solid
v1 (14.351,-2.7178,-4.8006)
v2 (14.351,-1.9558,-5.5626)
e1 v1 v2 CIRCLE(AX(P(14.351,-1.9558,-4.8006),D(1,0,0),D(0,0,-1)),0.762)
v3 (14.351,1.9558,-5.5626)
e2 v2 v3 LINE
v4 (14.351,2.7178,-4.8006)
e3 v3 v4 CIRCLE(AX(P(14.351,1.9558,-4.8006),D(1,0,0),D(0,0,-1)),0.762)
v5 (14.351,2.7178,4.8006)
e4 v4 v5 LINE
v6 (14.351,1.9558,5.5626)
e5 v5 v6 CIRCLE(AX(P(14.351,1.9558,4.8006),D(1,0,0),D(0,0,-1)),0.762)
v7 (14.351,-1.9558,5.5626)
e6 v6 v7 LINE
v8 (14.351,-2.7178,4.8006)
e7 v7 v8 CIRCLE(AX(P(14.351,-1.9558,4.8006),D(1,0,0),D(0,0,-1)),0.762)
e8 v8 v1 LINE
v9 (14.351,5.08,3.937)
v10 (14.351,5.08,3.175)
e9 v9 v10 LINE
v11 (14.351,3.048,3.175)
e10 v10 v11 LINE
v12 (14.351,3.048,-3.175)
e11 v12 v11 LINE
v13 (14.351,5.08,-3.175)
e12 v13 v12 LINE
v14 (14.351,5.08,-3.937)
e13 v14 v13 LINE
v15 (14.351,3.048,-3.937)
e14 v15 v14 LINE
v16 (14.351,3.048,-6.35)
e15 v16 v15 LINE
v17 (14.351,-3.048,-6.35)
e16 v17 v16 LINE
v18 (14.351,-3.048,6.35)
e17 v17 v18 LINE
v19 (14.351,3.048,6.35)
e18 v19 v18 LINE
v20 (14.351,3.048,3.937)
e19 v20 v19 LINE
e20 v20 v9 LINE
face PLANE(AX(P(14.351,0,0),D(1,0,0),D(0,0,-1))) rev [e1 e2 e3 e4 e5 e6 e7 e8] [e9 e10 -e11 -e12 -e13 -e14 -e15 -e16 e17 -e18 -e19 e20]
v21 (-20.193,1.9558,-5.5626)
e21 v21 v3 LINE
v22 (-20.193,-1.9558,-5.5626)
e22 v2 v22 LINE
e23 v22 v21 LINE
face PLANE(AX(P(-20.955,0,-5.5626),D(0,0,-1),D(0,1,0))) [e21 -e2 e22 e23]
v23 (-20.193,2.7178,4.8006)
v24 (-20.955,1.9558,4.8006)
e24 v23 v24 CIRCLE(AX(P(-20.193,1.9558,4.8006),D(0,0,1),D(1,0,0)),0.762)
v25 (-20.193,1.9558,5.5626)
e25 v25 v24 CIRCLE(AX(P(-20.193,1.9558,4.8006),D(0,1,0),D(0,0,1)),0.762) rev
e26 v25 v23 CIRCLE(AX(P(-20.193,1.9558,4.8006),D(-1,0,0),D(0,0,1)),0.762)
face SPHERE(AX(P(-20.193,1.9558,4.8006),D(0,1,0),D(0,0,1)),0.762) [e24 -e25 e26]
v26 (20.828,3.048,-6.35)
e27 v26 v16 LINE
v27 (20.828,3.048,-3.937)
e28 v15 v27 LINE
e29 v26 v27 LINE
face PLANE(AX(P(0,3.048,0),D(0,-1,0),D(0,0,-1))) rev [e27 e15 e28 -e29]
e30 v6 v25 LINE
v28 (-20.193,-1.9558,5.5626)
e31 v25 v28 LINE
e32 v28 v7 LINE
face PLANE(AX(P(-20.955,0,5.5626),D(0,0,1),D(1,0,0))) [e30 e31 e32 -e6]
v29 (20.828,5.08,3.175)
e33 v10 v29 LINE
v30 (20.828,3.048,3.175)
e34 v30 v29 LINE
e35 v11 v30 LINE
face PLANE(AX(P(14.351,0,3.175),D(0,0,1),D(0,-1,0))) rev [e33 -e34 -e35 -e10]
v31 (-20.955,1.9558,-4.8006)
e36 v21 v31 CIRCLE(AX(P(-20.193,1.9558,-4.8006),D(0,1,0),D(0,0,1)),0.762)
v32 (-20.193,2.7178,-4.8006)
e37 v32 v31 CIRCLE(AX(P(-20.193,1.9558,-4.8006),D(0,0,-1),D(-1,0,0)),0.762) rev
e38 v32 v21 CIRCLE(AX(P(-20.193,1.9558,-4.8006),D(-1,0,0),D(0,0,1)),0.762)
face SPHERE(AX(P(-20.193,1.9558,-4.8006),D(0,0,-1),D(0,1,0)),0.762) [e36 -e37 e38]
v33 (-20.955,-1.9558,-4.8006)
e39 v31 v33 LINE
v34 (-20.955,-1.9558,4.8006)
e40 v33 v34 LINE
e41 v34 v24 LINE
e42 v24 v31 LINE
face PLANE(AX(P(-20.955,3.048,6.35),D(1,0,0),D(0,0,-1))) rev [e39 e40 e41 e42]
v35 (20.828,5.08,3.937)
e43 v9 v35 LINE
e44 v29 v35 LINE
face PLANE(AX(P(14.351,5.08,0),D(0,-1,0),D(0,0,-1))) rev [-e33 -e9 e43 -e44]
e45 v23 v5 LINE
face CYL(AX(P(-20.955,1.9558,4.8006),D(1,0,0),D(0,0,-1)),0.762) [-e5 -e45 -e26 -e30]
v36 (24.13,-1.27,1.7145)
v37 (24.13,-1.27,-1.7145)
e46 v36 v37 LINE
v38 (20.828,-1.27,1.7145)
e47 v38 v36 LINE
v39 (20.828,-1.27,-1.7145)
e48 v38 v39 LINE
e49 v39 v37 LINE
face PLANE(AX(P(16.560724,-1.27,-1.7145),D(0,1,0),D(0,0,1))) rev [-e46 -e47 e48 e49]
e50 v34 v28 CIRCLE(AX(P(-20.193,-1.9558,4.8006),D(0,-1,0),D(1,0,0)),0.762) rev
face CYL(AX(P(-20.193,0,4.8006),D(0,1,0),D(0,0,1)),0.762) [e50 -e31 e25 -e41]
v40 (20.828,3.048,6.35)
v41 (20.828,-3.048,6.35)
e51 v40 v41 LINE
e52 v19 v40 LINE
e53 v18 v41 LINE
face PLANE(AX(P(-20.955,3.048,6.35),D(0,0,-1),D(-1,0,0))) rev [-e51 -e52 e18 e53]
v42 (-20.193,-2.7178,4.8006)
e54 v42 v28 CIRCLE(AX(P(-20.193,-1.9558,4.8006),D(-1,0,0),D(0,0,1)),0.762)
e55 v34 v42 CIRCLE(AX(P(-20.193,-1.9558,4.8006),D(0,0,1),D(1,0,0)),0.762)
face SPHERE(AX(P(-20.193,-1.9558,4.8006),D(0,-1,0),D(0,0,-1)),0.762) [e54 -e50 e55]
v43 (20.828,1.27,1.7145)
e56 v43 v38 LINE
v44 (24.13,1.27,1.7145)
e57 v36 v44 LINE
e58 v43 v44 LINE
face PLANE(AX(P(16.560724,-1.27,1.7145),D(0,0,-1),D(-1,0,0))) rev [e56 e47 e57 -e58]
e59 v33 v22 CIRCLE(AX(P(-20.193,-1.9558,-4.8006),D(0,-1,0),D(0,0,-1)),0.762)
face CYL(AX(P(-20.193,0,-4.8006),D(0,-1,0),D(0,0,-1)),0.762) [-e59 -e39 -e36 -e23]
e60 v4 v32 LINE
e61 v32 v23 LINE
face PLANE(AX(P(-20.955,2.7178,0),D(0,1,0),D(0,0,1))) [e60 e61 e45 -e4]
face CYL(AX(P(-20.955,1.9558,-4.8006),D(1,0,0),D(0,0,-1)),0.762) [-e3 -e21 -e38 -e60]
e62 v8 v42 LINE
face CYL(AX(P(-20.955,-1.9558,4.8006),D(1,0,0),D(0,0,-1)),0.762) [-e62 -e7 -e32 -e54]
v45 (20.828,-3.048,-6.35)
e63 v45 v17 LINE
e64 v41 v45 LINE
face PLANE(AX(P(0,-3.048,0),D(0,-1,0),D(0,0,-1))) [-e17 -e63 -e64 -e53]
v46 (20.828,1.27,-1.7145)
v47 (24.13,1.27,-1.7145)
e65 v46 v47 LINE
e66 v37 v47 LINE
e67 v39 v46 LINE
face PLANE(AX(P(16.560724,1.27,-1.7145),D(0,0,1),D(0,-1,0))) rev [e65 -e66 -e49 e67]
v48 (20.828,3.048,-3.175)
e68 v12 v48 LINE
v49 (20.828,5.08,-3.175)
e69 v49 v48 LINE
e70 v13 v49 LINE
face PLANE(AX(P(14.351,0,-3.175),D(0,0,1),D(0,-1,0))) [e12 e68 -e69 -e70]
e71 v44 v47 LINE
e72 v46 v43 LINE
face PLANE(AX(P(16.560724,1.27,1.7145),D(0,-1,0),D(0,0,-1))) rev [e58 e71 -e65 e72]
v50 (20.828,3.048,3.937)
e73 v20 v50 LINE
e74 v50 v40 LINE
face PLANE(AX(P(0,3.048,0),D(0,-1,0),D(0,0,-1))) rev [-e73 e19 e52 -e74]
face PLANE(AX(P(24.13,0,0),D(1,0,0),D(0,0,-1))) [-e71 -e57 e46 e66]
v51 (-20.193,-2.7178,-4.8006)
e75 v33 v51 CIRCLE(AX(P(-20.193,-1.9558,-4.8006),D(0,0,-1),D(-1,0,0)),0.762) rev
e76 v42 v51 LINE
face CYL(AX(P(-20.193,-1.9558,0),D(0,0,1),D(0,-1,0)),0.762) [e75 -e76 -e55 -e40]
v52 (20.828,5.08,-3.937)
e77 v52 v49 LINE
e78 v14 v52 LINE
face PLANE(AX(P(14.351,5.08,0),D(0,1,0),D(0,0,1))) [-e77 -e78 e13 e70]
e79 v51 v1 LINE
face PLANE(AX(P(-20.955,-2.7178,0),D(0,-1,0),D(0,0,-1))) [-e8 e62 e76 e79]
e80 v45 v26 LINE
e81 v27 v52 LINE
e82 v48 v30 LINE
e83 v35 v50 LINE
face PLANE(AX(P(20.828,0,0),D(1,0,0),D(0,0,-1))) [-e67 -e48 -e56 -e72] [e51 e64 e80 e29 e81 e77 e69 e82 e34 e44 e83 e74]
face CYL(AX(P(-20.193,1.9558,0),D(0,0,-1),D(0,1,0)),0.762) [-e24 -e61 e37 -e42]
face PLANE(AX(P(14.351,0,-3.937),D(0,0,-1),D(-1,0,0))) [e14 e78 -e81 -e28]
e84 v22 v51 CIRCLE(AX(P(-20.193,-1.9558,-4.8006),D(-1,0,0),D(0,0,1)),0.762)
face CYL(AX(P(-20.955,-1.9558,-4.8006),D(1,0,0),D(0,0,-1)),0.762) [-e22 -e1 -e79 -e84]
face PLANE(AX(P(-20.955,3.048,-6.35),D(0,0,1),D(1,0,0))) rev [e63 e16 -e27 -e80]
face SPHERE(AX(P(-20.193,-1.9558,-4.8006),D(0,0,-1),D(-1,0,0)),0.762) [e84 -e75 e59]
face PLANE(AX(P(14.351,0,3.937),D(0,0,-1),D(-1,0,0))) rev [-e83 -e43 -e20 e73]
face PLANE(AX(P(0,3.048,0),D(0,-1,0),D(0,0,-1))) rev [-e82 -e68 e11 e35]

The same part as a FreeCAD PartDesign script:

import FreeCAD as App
import Part
import Sketcher

V = App.Vector
Q = App.Units.Quantity


def edges_at(feature, points):
    """Names of the edges that pass closest to the given points."""
    edges = feature.Shape.Edges
    near = lambda p: min(range(len(edges)), key=lambda i: edges[i].distToShape(Part.Vertex(*p))[0])
    return sorted({f"Edge{near(p) + 1}" for p in points})


def add_polygon(sketch, points):
    """Adds a closed chain of lines whose ends are joined by coincident constraints."""
    first, n = sketch.GeometryCount, len(points)
    for a, b in zip(points, points[1:] + points[:1]):
        sketch.addGeometry(Part.LineSegment(App.Vector(*a, 0), App.Vector(*b, 0)), False)
    for i in range(n):
        sketch.addConstraint(Sketcher.Constraint("Coincident", first + i, 2, first + (i + 1) % n, 1))

doc = App.newDocument("Part")
body = doc.addObject("PartDesign::Body", "Body")
body.AllowCompound = True

sketch1 = body.newObject("Sketcher::SketchObject", "Sketch")
sketch1.AttachmentSupport = (doc.getObject("XZ_Plane"), [""])
sketch1.MapMode = "FlatFace"
add_polygon(sketch1, [(-20.955, -6.35), (-20.955, 6.35), (20.955, 6.35), (20.955, -6.35)])
sketch1.addConstraint(Sketcher.Constraint("Vertical", 0))
sketch1.addConstraint(Sketcher.Constraint("Horizontal", 1))
sketch1.addConstraint(Sketcher.Constraint("Vertical", 2))
sketch1.addConstraint(Sketcher.Constraint("Horizontal", 3))
sketch1.addConstraint(Sketcher.Constraint("Symmetric", 0, 2, 2, 2, -1, 1))
sketch1.addConstraint(Sketcher.Constraint("DistanceY", 0, 1, 0, 2, Q("0.5 in")))
sketch1.addConstraint(Sketcher.Constraint("DistanceX", 1, 1, 1, 2, Q("1.65 in")))
pad1 = body.newObject("PartDesign::Pad", "Pad")
pad1.Profile = sketch1
pad1.Length = Q("0.24 in")
pad1.Midplane = True

sketch2 = body.newObject("Sketcher::SketchObject", "Sketch001")
sketch2.AttachmentSupport = (doc.getObject("YZ_Plane"), [""])
sketch2.MapMode = "FlatFace"
sketch2.AttachmentOffset = App.Placement(V(0, 0, 0.825 * 25.4), App.Rotation())
add_polygon(sketch2, [(5.08, 3.937), (3.048, 3.937), (3.048, 3.175), (5.08, 3.175)])
add_polygon(sketch2, [(5.08, -3.175), (3.048, -3.175), (3.048, -3.937), (5.08, -3.937)])
sketch2.addConstraint(Sketcher.Constraint("Horizontal", 0))
sketch2.addConstraint(Sketcher.Constraint("Vertical", 1))
sketch2.addConstraint(Sketcher.Constraint("Horizontal", 2))
sketch2.addConstraint(Sketcher.Constraint("Vertical", 3))
sketch2.addConstraint(Sketcher.Constraint("Horizontal", 4))
sketch2.addConstraint(Sketcher.Constraint("Vertical", 5))
sketch2.addConstraint(Sketcher.Constraint("Horizontal", 6))
sketch2.addConstraint(Sketcher.Constraint("Vertical", 7))
sketch2.addConstraint(Sketcher.Constraint("Symmetric", 1, 2, 4, 2, -1))
sketch2.addConstraint(Sketcher.Constraint("Symmetric", 3, 2, 6, 2, -1))
sketch2.addConstraint(Sketcher.Constraint("DistanceX", 0, 2, 0, 1, Q("0.08 in")))
sketch2.addConstraint(Sketcher.Constraint("DistanceY", 1, 2, 1, 1, Q("0.03 in")))
sketch2.addConstraint(Sketcher.Constraint("DistanceX", -1, 1, 2, 2, Q("0.2 in")))
sketch2.addConstraint(Sketcher.Constraint("DistanceY", 4, 2, 1, 2, Q("0.25 in")))
pad2 = body.newObject("PartDesign::Pad", "Pad001")
pad2.Profile = sketch2
pad2.Length = Q("0.26 in")
pad2.Reversed = True

sketch3 = body.newObject("Sketcher::SketchObject", "Sketch002")
sketch3.AttachmentSupport = (doc.getObject("YZ_Plane"), [""])
sketch3.MapMode = "FlatFace"
sketch3.AttachmentOffset = App.Placement(V(0, 0, 0.825 * 25.4), App.Rotation())
add_polygon(sketch3, [(1.27, 1.7145), (-1.27, 1.7145), (-1.27, -1.7145), (1.27, -1.7145)])
sketch3.addConstraint(Sketcher.Constraint("Horizontal", 0))
sketch3.addConstraint(Sketcher.Constraint("Vertical", 1))
sketch3.addConstraint(Sketcher.Constraint("Horizontal", 2))
sketch3.addConstraint(Sketcher.Constraint("Vertical", 3))
sketch3.addConstraint(Sketcher.Constraint("Symmetric", 0, 2, 2, 2, -1, 1))
sketch3.addConstraint(Sketcher.Constraint("DistanceX", 0, 2, 0, 1, Q("0.1 in")))
sketch3.addConstraint(Sketcher.Constraint("DistanceY", 1, 2, 1, 1, Q("0.135 in")))
pad3 = body.newObject("PartDesign::Pad", "Pad002")
pad3.Profile = sketch3
pad3.Length = Q("0.125 in")

sketch4 = body.newObject("Sketcher::SketchObject", "Sketch003")
sketch4.AttachmentSupport = (doc.getObject("YZ_Plane"), [""])
sketch4.MapMode = "FlatFace"
sketch4.AttachmentOffset = App.Placement(V(0, 0, 0.565 * 25.4), App.Rotation())
add_polygon(sketch4, [(3.958647, 7.119951), (-3.958647, 7.119951), (-3.958647, -7.119951), (3.958647, -7.119951)])
add_polygon(sketch4, [(-2.7178, -5.5626), (-2.7178, 5.5626), (2.7178, 5.5626), (2.7178, -5.5626)])
sketch4.addConstraint(Sketcher.Constraint("Horizontal", 0))
sketch4.addConstraint(Sketcher.Constraint("Vertical", 1))
sketch4.addConstraint(Sketcher.Constraint("Horizontal", 2))
sketch4.addConstraint(Sketcher.Constraint("Vertical", 3))
sketch4.addConstraint(Sketcher.Constraint("Vertical", 4))
sketch4.addConstraint(Sketcher.Constraint("Horizontal", 5))
sketch4.addConstraint(Sketcher.Constraint("Vertical", 6))
sketch4.addConstraint(Sketcher.Constraint("Horizontal", 7))
sketch4.addConstraint(Sketcher.Constraint("Symmetric", 0, 2, 2, 2, -1, 1))
sketch4.addConstraint(Sketcher.Constraint("Symmetric", 4, 2, 6, 2, -1, 1))
sketch4.addConstraint(Sketcher.Constraint("DistanceX", 5, 1, 5, 2, Q("0.214 in")))
sketch4.addConstraint(Sketcher.Constraint("DistanceY", 4, 1, 4, 2, Q("0.438 in")))
sketch4.addConstraint(Sketcher.Constraint("DistanceY", 1, 2, 1, 1, Q("14.239901 mm")))
sketch4.addConstraint(Sketcher.Constraint("DistanceX", 0, 2, 0, 1, Q("7.917294 mm")))
pocket1 = body.newObject("PartDesign::Pocket", "Pocket")
pocket1.Profile = sketch4
pocket1.Type = "ThroughAll"
doc.recompute()

fillet = body.newObject("PartDesign::Fillet", "Fillet")
fillet.Base = (pocket1, edges_at(pocket1, [
    (-20.955, 0, 5.563),
    (-20.955, -2.718, 0),
    (-20.955, 0, -5.563),
    (-20.955, 2.718, 0),
    (-3.302, -2.718, 5.563),
    (-3.302, 2.718, 5.563),
    (-3.302, 2.718, -5.563),
    (-3.302, -2.718, -5.563),
]))
fillet.Radius = Q("0.03 in")

sketch5 = body.newObject("Sketcher::SketchObject", "Sketch004")
sketch5.AttachmentSupport = (doc.getObject("YZ_Plane"), [""])
sketch5.MapMode = "FlatFace"
sketch5.AttachmentOffset = App.Placement(V(0, 0, 0.825 * 25.4), App.Rotation())
add_polygon(sketch5, [(-3.048, 6.35), (-3.048, -6.35), (3.048, -6.35), (3.048, -3.937), (5.08, -3.937), (5.08, -3.175), (3.048, -3.175), (3.048, 3.175), (5.08, 3.175), (5.08, 3.937), (3.048, 3.937), (3.048, 6.35)])
sketch5.addConstraint(Sketcher.Constraint("Vertical", 0))
sketch5.addConstraint(Sketcher.Constraint("Horizontal", 1))
sketch5.addConstraint(Sketcher.Constraint("Vertical", 2))
sketch5.addConstraint(Sketcher.Constraint("Horizontal", 3))
sketch5.addConstraint(Sketcher.Constraint("Vertical", 4))
sketch5.addConstraint(Sketcher.Constraint("Horizontal", 5))
sketch5.addConstraint(Sketcher.Constraint("Vertical", 6))
sketch5.addConstraint(Sketcher.Constraint("Horizontal", 7))
sketch5.addConstraint(Sketcher.Constraint("Vertical", 8))
sketch5.addConstraint(Sketcher.Constraint("Horizontal", 9))
sketch5.addConstraint(Sketcher.Constraint("Vertical", 10))
sketch5.addConstraint(Sketcher.Constraint("Horizontal", 11))
sketch5.addConstraint(Sketcher.Constraint("Symmetric", 0, 2, 10, 2, -1, 1))
sketch5.addConstraint(Sketcher.Constraint("Symmetric", 4, 2, 7, 2, -1))
sketch5.addConstraint(Sketcher.Constraint("Symmetric", 2, 2, 9, 2, -1))
sketch5.addConstraint(Sketcher.Constraint("Vertical", 2, 2, 5, 2))
sketch5.addConstraint(Sketcher.Constraint("DistanceY", 0, 2, 0, 1, Q("0.5 in")))
sketch5.addConstraint(Sketcher.Constraint("DistanceX", 1, 1, 1, 2, Q("0.24 in")))
sketch5.addConstraint(Sketcher.Constraint("DistanceX", 3, 1, 3, 2, Q("0.08 in")))
sketch5.addConstraint(Sketcher.Constraint("DistanceY", 4, 1, 4, 2, Q("0.03 in")))
sketch5.addConstraint(Sketcher.Constraint("DistanceY", 6, 1, 6, 2, Q("0.25 in")))
pocket2 = body.newObject("PartDesign::Pocket", "Pocket001")
pocket2.Profile = sketch5
pocket2.Length = Q("0.005 in")

sketch6 = body.newObject("Sketcher::SketchObject", "Sketch005")
sketch6.AttachmentSupport = (doc.getObject("YZ_Plane"), [""])
sketch6.MapMode = "FlatFace"
sketch6.AttachmentOffset = App.Placement(V(0, 0, 0.825 * 25.4), App.Rotation())
add_polygon(sketch6, [(1.27, -1.7145), (-1.27, -1.7145), (-1.27, 1.7145), (1.27, 1.7145)])
sketch6.addConstraint(Sketcher.Constraint("Horizontal", 0))
sketch6.addConstraint(Sketcher.Constraint("Vertical", 1))
sketch6.addConstraint(Sketcher.Constraint("Horizontal", 2))
sketch6.addConstraint(Sketcher.Constraint("Vertical", 3))
sketch6.addConstraint(Sketcher.Constraint("Symmetric", 0, 2, 2, 2, -1, 1))
sketch6.addConstraint(Sketcher.Constraint("DistanceX", 0, 2, 0, 1, Q("0.1 in")))
sketch6.addConstraint(Sketcher.Constraint("DistanceY", 1, 1, 1, 2, Q("0.135 in")))
pad4 = body.newObject("PartDesign::Pad", "Pad003")
pad4.Profile = sketch6
pad4.Length = Q("0.005 in")
pad4.Reversed = True

doc.recompute()
